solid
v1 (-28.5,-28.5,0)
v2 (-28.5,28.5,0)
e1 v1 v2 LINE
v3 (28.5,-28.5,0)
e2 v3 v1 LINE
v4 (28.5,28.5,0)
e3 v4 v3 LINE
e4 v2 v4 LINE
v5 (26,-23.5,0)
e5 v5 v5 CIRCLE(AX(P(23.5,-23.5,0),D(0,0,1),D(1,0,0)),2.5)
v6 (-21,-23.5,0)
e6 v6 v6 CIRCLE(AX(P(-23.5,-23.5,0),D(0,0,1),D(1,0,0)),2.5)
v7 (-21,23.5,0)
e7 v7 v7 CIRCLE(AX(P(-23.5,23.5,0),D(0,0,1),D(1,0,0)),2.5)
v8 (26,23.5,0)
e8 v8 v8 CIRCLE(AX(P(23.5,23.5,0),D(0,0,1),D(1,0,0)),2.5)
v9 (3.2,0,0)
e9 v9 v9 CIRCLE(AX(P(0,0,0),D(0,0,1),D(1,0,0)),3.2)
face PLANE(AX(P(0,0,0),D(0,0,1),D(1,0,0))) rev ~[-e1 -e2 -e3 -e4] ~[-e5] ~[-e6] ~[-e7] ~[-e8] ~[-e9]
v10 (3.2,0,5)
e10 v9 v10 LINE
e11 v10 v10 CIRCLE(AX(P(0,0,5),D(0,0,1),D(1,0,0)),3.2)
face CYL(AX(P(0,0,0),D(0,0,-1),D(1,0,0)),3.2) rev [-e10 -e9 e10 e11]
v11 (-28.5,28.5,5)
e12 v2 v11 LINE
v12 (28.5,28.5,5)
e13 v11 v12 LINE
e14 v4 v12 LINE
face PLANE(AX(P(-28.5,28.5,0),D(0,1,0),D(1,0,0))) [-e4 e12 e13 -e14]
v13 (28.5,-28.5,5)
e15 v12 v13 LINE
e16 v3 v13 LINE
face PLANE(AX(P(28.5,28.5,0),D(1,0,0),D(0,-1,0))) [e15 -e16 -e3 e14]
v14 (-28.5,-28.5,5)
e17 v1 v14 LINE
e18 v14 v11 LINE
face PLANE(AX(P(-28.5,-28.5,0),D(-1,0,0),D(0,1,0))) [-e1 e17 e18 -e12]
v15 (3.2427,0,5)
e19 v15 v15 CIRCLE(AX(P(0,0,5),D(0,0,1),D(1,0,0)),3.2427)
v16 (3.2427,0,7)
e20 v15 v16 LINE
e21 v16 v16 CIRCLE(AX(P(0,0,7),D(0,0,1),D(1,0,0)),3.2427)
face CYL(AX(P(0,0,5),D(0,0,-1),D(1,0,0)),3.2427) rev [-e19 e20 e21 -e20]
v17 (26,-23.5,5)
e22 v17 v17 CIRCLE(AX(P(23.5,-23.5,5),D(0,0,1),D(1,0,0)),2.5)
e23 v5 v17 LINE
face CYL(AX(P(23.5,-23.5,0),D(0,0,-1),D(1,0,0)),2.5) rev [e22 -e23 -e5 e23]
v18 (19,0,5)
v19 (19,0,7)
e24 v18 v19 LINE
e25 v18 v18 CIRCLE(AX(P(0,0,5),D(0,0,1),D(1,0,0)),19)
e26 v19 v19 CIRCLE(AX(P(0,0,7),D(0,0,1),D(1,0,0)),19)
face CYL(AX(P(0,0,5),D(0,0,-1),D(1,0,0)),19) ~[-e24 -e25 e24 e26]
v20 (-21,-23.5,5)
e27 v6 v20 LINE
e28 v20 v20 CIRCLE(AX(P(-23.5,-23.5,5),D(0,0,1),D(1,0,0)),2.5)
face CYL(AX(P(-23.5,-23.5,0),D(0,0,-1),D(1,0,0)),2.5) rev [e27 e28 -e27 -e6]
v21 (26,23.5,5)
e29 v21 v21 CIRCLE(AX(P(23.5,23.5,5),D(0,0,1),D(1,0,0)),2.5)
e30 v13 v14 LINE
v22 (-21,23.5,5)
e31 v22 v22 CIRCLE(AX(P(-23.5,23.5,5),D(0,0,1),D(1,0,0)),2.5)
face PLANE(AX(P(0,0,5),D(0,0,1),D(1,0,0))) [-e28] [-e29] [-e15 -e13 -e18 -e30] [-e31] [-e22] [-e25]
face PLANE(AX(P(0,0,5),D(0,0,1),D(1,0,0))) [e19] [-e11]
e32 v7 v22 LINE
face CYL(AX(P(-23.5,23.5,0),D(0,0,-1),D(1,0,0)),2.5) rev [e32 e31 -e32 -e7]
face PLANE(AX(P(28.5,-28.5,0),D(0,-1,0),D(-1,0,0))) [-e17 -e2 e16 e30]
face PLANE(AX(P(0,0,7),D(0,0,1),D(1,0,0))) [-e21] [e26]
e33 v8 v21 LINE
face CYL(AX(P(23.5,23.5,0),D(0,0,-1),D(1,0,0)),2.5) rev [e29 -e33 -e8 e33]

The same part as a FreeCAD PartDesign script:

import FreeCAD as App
import Part
import Sketcher
Q = App.Units.Quantity

doc = App.newDocument("Part")
body = doc.addObject("PartDesign::Body", "Body")

# Sketch on XY plane
sketch1 = body.newObject("Sketcher::SketchObject", "Sketch")
sketch1.AttachmentSupport = (doc.getObject("XY_Plane"), [""])
sketch1.MapMode = "FlatFace"
sketch1.addGeometry(Part.LineSegment(App.Vector(28.5, 28.5, 0), App.Vector(-28.5, 28.5, 0)), False)
sketch1.addGeometry(Part.LineSegment(App.Vector(-28.5, 28.5, 0), App.Vector(-28.5, -28.5, 0)), False)
sketch1.addGeometry(Part.LineSegment(App.Vector(-28.5, -28.5, 0), App.Vector(28.5, -28.5, 0)), False)
sketch1.addGeometry(Part.LineSegment(App.Vector(28.5, -28.5, 0), App.Vector(28.5, 28.5, 0)), False)
sketch1.addGeometry(Part.Circle(App.Vector(-23.5, -23.5, 0), App.Vector(0, 0, 1), 2.5), False)
sketch1.addGeometry(Part.Circle(App.Vector(23.5, -23.5, 0), App.Vector(0, 0, 1), 2.5), False)
sketch1.addGeometry(Part.Circle(App.Vector(-23.5, 23.5, 0), App.Vector(0, 0, 1), 2.5), False)
sketch1.addGeometry(Part.Circle(App.Vector(0, 0, 0), App.Vector(0, 0, 1), 3.2), False)
sketch1.addGeometry(Part.Circle(App.Vector(23.5, 23.5, 0), App.Vector(0, 0, 1), 2.5), False)
sketch1.addConstraint(Sketcher.Constraint("Coincident", 0, 2, 1, 1))
sketch1.addConstraint(Sketcher.Constraint("Coincident", 1, 2, 2, 1))
sketch1.addConstraint(Sketcher.Constraint("Coincident", 2, 2, 3, 1))
sketch1.addConstraint(Sketcher.Constraint("Coincident", 3, 2, 0, 1))
sketch1.addConstraint(Sketcher.Constraint("Horizontal", 0))
sketch1.addConstraint(Sketcher.Constraint("Vertical", 1))
sketch1.addConstraint(Sketcher.Constraint("Horizontal", 2))
sketch1.addConstraint(Sketcher.Constraint("Vertical", 3))
sketch1.addConstraint(Sketcher.Constraint("Coincident", 7, 3, -1, 1))
sketch1.addConstraint(Sketcher.Constraint("Equal", 4, 5))
sketch1.addConstraint(Sketcher.Constraint("Equal", 5, 6))
sketch1.addConstraint(Sketcher.Constraint("Equal", 6, 8))
sketch1.addConstraint(Sketcher.Constraint("Symmetric", 5, 3, 6, 3, -1, 1))
sketch1.addConstraint(Sketcher.Constraint("Symmetric", 4, 3, 8, 3, -1, 1))
sketch1.addConstraint(Sketcher.Constraint("Symmetric", 0, 2, 2, 2, -1, 1))
sketch1.addConstraint(Sketcher.Constraint("Symmetric", 4, 3, 5, 3, -2))
sketch1.addConstraint(Sketcher.Constraint("Equal", 2, 1))
sketch1.addConstraint(Sketcher.Constraint("Diameter", 4, Q("5 mm")))
sketch1.addConstraint(Sketcher.Constraint("Diameter", 7, Q("6.4 mm")))
sketch1.addConstraint(Sketcher.Constraint("DistanceX", 0, 2, 0, 1, Q("57 mm")))
sketch1.addConstraint(Sketcher.Constraint("DistanceX", 0, 2, 6, 3, Q("5 mm")))
sketch1.addConstraint(Sketcher.Constraint("DistanceY", 6, 3, 0, 2, Q("5 mm")))
pad1 = body.newObject("PartDesign::Pad", "Pad")
pad1.Profile = sketch1
pad1.Length = 5

# Sketch on XY plane
sketch2 = body.newObject("Sketcher::SketchObject", "Sketch001")
sketch2.AttachmentSupport = (doc.getObject("XY_Plane"), [""])
sketch2.MapMode = "FlatFace"
sketch2.AttachmentOffset = App.Placement(App.Vector(0, 0, 5), App.Rotation())
sketch2.addGeometry(Part.Circle(App.Vector(0, 0, 0), App.Vector(0, 0, 1), 19), False)
sketch2.addGeometry(Part.Circle(App.Vector(0, 0, 0), App.Vector(0, 0, 1), 3.2), False)
sketch2.addConstraint(Sketcher.Constraint("Coincident", 0, 3, -1, 1))
sketch2.addConstraint(Sketcher.Constraint("Coincident", 1, 3, -1, 1))
sketch2.addConstraint(Sketcher.Constraint("Diameter", 0, Q("38 mm")))
sketch2.addConstraint(Sketcher.Constraint("Diameter", 1, Q("6.4854 mm")))
pad2 = body.newObject("PartDesign::Pad", "Pad001")
pad2.Profile = sketch2
pad2.Length = 2

doc.recompute()
